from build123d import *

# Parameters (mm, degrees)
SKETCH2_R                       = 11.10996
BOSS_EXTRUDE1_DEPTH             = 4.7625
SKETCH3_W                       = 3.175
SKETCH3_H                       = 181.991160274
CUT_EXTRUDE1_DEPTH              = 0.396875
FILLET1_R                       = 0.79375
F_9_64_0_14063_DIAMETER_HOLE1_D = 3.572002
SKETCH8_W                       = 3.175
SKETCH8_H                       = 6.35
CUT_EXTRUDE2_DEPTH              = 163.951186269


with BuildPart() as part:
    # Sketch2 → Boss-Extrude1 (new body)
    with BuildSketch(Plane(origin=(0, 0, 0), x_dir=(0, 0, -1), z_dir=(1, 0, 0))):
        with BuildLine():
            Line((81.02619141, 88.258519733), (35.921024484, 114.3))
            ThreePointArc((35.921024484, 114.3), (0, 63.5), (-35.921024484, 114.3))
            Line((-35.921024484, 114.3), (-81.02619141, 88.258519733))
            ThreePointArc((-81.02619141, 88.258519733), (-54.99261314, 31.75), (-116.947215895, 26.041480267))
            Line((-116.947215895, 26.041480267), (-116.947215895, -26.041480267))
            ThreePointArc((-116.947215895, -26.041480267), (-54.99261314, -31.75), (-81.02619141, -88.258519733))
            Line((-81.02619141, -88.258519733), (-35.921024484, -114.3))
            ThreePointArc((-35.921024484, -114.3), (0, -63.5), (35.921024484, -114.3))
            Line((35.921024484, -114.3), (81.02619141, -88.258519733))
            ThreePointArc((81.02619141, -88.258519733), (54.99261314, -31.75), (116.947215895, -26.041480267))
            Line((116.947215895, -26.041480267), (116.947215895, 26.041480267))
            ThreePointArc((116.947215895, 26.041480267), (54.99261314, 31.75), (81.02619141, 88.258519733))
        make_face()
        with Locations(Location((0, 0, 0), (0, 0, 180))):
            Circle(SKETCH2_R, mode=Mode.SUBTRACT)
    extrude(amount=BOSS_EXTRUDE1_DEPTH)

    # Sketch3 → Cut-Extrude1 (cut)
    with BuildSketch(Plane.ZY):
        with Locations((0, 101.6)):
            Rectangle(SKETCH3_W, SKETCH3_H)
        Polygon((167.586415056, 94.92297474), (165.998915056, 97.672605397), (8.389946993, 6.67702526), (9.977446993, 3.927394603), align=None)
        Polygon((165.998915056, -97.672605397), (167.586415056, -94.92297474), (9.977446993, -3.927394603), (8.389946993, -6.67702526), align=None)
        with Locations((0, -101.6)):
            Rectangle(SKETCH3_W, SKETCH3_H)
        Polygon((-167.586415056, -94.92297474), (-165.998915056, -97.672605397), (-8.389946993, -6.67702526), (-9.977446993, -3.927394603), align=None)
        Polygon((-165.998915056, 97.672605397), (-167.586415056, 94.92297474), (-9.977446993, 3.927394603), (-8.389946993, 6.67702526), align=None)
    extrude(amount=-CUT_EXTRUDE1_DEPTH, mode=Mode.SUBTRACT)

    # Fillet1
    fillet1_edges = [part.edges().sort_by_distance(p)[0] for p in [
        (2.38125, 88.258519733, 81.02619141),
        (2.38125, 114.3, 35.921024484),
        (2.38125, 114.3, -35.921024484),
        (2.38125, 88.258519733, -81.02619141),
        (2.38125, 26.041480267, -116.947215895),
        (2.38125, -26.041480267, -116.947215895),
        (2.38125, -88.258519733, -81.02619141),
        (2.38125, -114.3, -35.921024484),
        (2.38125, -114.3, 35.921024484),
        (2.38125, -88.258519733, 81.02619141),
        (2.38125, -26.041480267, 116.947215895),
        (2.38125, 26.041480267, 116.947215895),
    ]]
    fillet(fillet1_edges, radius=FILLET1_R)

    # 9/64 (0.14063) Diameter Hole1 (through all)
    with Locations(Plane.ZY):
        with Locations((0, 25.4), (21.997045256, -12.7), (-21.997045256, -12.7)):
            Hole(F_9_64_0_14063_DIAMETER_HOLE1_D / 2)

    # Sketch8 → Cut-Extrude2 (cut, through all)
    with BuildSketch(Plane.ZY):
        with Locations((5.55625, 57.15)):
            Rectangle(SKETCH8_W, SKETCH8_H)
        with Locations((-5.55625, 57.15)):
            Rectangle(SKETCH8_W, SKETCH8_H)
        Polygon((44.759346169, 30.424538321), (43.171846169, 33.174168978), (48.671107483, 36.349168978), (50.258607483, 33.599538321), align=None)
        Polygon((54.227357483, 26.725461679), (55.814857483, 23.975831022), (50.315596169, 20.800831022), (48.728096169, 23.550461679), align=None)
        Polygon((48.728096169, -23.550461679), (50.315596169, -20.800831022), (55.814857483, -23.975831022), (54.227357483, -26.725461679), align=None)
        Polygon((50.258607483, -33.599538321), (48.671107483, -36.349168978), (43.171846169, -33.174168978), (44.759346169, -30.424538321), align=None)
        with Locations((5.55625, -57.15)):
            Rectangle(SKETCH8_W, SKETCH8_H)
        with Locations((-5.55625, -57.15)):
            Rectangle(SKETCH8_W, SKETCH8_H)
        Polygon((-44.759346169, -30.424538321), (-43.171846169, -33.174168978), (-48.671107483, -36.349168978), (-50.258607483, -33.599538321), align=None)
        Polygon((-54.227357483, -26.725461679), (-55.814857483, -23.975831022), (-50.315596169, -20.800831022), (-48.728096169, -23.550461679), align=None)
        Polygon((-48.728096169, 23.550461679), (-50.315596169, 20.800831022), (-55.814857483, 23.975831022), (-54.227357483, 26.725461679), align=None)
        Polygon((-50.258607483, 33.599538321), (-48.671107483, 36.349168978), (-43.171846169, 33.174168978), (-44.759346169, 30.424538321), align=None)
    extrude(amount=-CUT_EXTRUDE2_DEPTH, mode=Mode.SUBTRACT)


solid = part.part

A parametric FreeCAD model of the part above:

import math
import FreeCAD as App
import Part
import Sketcher
from FreeCAD import Vector
Q = App.Units.Quantity


def edges_at(feature, points):
    """Names of the edges that pass closest to the given points."""
    edges = feature.Shape.Edges
    near = lambda p: min(range(len(edges)), key=lambda i: edges[i].distToShape(Part.Vertex(*p))[0])
    return sorted({f"Edge{near(p) + 1}" for p in points})

doc = App.newDocument("Part")
body = doc.addObject("PartDesign::Body", "Body")

# Sketch on YZ plane
sketch1 = doc.addObject("Sketcher::SketchObject", "Sketch")
body.addObject(sketch1)
sketch1.AttachmentSupport = (doc.YZ_Plane, [""])
sketch1.MapMode = "FlatFace"
sketch1.addGeometry(Part.LineSegment(Vector(88.25852, -81.026191, 0), Vector(114.3, -35.921024, 0)), False)
sketch1.addGeometry(Part.ArcOfCircle(Part.Circle(Vector(101.6, 0, 0), Vector(0, 0, 1), 38.1), math.radians(70.528779), math.radians(289.471221)), False)
sketch1.addGeometry(Part.LineSegment(Vector(114.3, 35.921024, 0), Vector(88.25852, 81.026191, 0)), False)
sketch1.addGeometry(Part.ArcOfCircle(Part.Circle(Vector(50.8, 87.988181, 0), Vector(0, 0, 1), 38.1), math.radians(130.528779), math.radians(349.471221)), False)
sketch1.addGeometry(Part.LineSegment(Vector(26.04148, 116.947216, 0), Vector(-26.04148, 116.947216, 0)), False)
sketch1.addGeometry(Part.ArcOfCircle(Part.Circle(Vector(-50.8, 87.988181, 0), Vector(0, 0, 1), 38.1), math.radians(-169.471221), math.radians(49.471221)), False)
sketch1.addGeometry(Part.LineSegment(Vector(-88.25852, 81.026191, 0), Vector(-114.3, 35.921024, 0)), False)
sketch1.addGeometry(Part.ArcOfCircle(Part.Circle(Vector(-101.6, 0, 0), Vector(0, 0, 1), 38.1), math.radians(-109.471221), math.radians(109.471221)), False)
sketch1.addGeometry(Part.LineSegment(Vector(-114.3, -35.921024, 0), Vector(-88.25852, -81.026191, 0)), False)
sketch1.addGeometry(Part.ArcOfCircle(Part.Circle(Vector(-50.8, -87.988181, 0), Vector(0, 0, 1), 38.1), math.radians(-49.471221), math.radians(169.471221)), False)
sketch1.addGeometry(Part.LineSegment(Vector(-26.04148, -116.947216, 0), Vector(26.04148, -116.947216, 0)), False)
sketch1.addGeometry(Part.ArcOfCircle(Part.Circle(Vector(50.8, -87.988181, 0), Vector(0, 0, 1), 38.1), math.radians(10.528779), math.radians(229.471221)), False)
sketch1.addGeometry(Part.Circle(Vector(0, 0, 0), Vector(0, 0, 1), 11.10996), False)
sketch1.addConstraint(Sketcher.Constraint("Coincident", 0, 2, 1, 2))
sketch1.addConstraint(Sketcher.Constraint("Coincident", 1, 1, 2, 1))
sketch1.addConstraint(Sketcher.Constraint("Coincident", 2, 2, 3, 2))
sketch1.addConstraint(Sketcher.Constraint("Coincident", 3, 1, 4, 1))
sketch1.addConstraint(Sketcher.Constraint("Coincident", 4, 2, 5, 2))
sketch1.addConstraint(Sketcher.Constraint("Coincident", 5, 1, 6, 1))
sketch1.addConstraint(Sketcher.Constraint("Coincident", 6, 2, 7, 2))
sketch1.addConstraint(Sketcher.Constraint("Coincident", 7, 1, 8, 1))
sketch1.addConstraint(Sketcher.Constraint("Coincident", 8, 2, 9, 2))
sketch1.addConstraint(Sketcher.Constraint("Coincident", 9, 1, 10, 1))
sketch1.addConstraint(Sketcher.Constraint("Coincident", 10, 2, 11, 2))
sketch1.addConstraint(Sketcher.Constraint("Coincident", 11, 1, 0, 1))
sketch1.addConstraint(Sketcher.Constraint("Horizontal", 4))
sketch1.addConstraint(Sketcher.Constraint("Horizontal", 10))
sketch1.addConstraint(Sketcher.Constraint("Coincident", 12, 3, -1, 1))
sketch1.addConstraint(Sketcher.Constraint("Equal", 1, 3))
sketch1.addConstraint(Sketcher.Constraint("Equal", 3, 5))
sketch1.addConstraint(Sketcher.Constraint("Equal", 5, 7))
sketch1.addConstraint(Sketcher.Constraint("Equal", 7, 9))
sketch1.addConstraint(Sketcher.Constraint("Equal", 9, 11))
sketch1.addConstraint(Sketcher.Constraint("Symmetric", 1, 3, 7, 3, -1, 1))
sketch1.addConstraint(Sketcher.Constraint("Symmetric", 3, 3, 9, 3, -1, 1))
sketch1.addConstraint(Sketcher.Constraint("Symmetric", 5, 3, 11, 3, -1, 1))
sketch1.addConstraint(Sketcher.Constraint("Symmetric", 3, 3, 5, 3, -2))
sketch1.addConstraint(Sketcher.Constraint("Symmetric", 1, 1, 6, 2, -2))
sketch1.addConstraint(Sketcher.Constraint("Parallel", 0, 6))
sketch1.addConstraint(Sketcher.Constraint("Parallel", 2, 8))
sketch1.addConstraint(Sketcher.Constraint("Horizontal", 2, 2, 5, 1))
sketch1.addConstraint(Sketcher.Constraint("Horizontal", 0, 2, 7, 1))
sketch1.addConstraint(Sketcher.Constraint("Vertical", 0, 2, 1, 1))
sketch1.addConstraint(Sketcher.Constraint("Vertical", 4, 2, 9, 1))
sketch1.addConstraint(Sketcher.Constraint("Radius", 1, Q("1.5 in")))
sketch1.addConstraint(Sketcher.Constraint("DistanceX", -1, 1, 1, 3, Q("4 in")))
sketch1.addConstraint(Sketcher.Constraint("DistanceX", -1, 1, 3, 3, Q("2 in")))
sketch1.addConstraint(Sketcher.Constraint("Angle", 0, Q("60 deg")))
sketch1.addConstraint(Sketcher.Constraint("Diameter", 12, Q("0.8748 in")))
sketch1.addConstraint(Sketcher.Constraint("DistanceX", -1, 1, 0, 2, Q("4.5 in")))
sketch1.addConstraint(Sketcher.Constraint("DistanceX", 4, 2, 2, 2, Q("4.5 in")))
sketch1.addConstraint(Sketcher.Constraint("DistanceX", 4, 2, 4, 1, Q("52.082961 mm")))
pad1 = doc.addObject("PartDesign::Pad", "Pad")
body.addObject(pad1)
pad1.Profile = sketch1
pad1.Length = Q("0.1875 in")

# Sketch on YZ plane
sketch2 = doc.addObject("Sketcher::SketchObject", "Sketch001")
body.addObject(sketch2)
sketch2.AttachmentSupport = (doc.YZ_Plane, [""])
sketch2.MapMode = "FlatFace"
sketch2.addGeometry(Part.LineSegment(Vector(192.59558, -1.5875, 0), Vector(10.60442, -1.5875, 0)), False)
sketch2.addGeometry(Part.LineSegment(Vector(10.60442, -1.5875, 0), Vector(10.60442, 1.5875, 0)), False)
sketch2.addGeometry(Part.LineSegment(Vector(10.60442, 1.5875, 0), Vector(192.59558, 1.5875, 0)), False)
sketch2.addGeometry(Part.LineSegment(Vector(192.59558, 1.5875, 0), Vector(192.59558, -1.5875, 0)), False)
sketch2.addGeometry(Part.LineSegment(Vector(94.922975, 167.586415, 0), Vector(97.672605, 165.998915, 0)), False)
sketch2.addGeometry(Part.LineSegment(Vector(97.672605, 165.998915, 0), Vector(6.677025, 8.389947, 0)), False)
sketch2.addGeometry(Part.LineSegment(Vector(6.677025, 8.389947, 0), Vector(3.927395, 9.977447, 0)), False)
sketch2.addGeometry(Part.LineSegment(Vector(3.927395, 9.977447, 0), Vector(94.922975, 167.586415, 0)), False)
sketch2.addGeometry(Part.LineSegment(Vector(-97.672605, 165.998915, 0), Vector(-94.922975, 167.586415, 0)), False)
sketch2.addGeometry(Part.LineSegment(Vector(-94.922975, 167.586415, 0), Vector(-3.927395, 9.977447, 0)), False)
sketch2.addGeometry(Part.LineSegment(Vector(-3.927395, 9.977447, 0), Vector(-6.677025, 8.389947, 0)), False)
sketch2.addGeometry(Part.LineSegment(Vector(-6.677025, 8.389947, 0), Vector(-97.672605, 165.998915, 0)), False)
sketch2.addGeometry(Part.LineSegment(Vector(-10.60442, -1.5875, 0), Vector(-192.59558, -1.5875, 0)), False)
sketch2.addGeometry(Part.LineSegment(Vector(-192.59558, -1.5875, 0), Vector(-192.59558, 1.5875, 0)), False)
sketch2.addGeometry(Part.LineSegment(Vector(-192.59558, 1.5875, 0), Vector(-10.60442, 1.5875, 0)), False)
sketch2.addGeometry(Part.LineSegment(Vector(-10.60442, 1.5875, 0), Vector(-10.60442, -1.5875, 0)), False)
sketch2.addGeometry(Part.LineSegment(Vector(-94.922975, -167.586415, 0), Vector(-97.672605, -165.998915, 0)), False)
sketch2.addGeometry(Part.LineSegment(Vector(-97.672605, -165.998915, 0), Vector(-6.677025, -8.389947, 0)), False)
sketch2.addGeometry(Part.LineSegment(Vector(-6.677025, -8.389947, 0), Vector(-3.927395, -9.977447, 0)), False)
sketch2.addGeometry(Part.LineSegment(Vector(-3.927395, -9.977447, 0), Vector(-94.922975, -167.586415, 0)), False)
sketch2.addGeometry(Part.LineSegment(Vector(97.672605, -165.998915, 0), Vector(94.922975, -167.586415, 0)), False)
sketch2.addGeometry(Part.LineSegment(Vector(94.922975, -167.586415, 0), Vector(3.927395, -9.977447, 0)), False)
sketch2.addGeometry(Part.LineSegment(Vector(3.927395, -9.977447, 0), Vector(6.677025, -8.389947, 0)), False)
sketch2.addGeometry(Part.LineSegment(Vector(6.677025, -8.389947, 0), Vector(97.672605, -165.998915, 0)), False)
sketch2.addConstraint(Sketcher.Constraint("Coincident", 0, 2, 1, 1))
sketch2.addConstraint(Sketcher.Constraint("Coincident", 1, 2, 2, 1))
sketch2.addConstraint(Sketcher.Constraint("Coincident", 2, 2, 3, 1))
sketch2.addConstraint(Sketcher.Constraint("Coincident", 3, 2, 0, 1))
sketch2.addConstraint(Sketcher.Constraint("Coincident", 4, 2, 5, 1))
sketch2.addConstraint(Sketcher.Constraint("Coincident", 5, 2, 6, 1))
sketch2.addConstraint(Sketcher.Constraint("Coincident", 6, 2, 7, 1))
sketch2.addConstraint(Sketcher.Constraint("Coincident", 7, 2, 4, 1))
sketch2.addConstraint(Sketcher.Constraint("Coincident", 8, 2, 9, 1))
sketch2.addConstraint(Sketcher.Constraint("Coincident", 9, 2, 10, 1))
sketch2.addConstraint(Sketcher.Constraint("Coincident", 10, 2, 11, 1))
sketch2.addConstraint(Sketcher.Constraint("Coincident", 11, 2, 8, 1))
sketch2.addConstraint(Sketcher.Constraint("Coincident", 12, 2, 13, 1))
sketch2.addConstraint(Sketcher.Constraint("Coincident", 13, 2, 14, 1))
sketch2.addConstraint(Sketcher.Constraint("Coincident", 14, 2, 15, 1))
sketch2.addConstraint(Sketcher.Constraint("Coincident", 15, 2, 12, 1))
sketch2.addConstraint(Sketcher.Constraint("Coincident", 16, 2, 17, 1))
sketch2.addConstraint(Sketcher.Constraint("Coincident", 17, 2, 18, 1))
sketch2.addConstraint(Sketcher.Constraint("Coincident", 18, 2, 19, 1))
sketch2.addConstraint(Sketcher.Constraint("Coincident", 19, 2, 16, 1))
sketch2.addConstraint(Sketcher.Constraint("Coincident", 20, 2, 21, 1))
sketch2.addConstraint(Sketcher.Constraint("Coincident", 21, 2, 22, 1))
sketch2.addConstraint(Sketcher.Constraint("Coincident", 22, 2, 23, 1))
sketch2.addConstraint(Sketcher.Constraint("Coincident", 23, 2, 20, 1))
sketch2.addConstraint(Sketcher.Constraint("Horizontal", 0))
sketch2.addConstraint(Sketcher.Constraint("Vertical", 1))
sketch2.addConstraint(Sketcher.Constraint("Horizontal", 2))
sketch2.addConstraint(Sketcher.Constraint("Vertical", 3))
sketch2.addConstraint(Sketcher.Constraint("Horizontal", 12))
sketch2.addConstraint(Sketcher.Constraint("Vertical", 13))
sketch2.addConstraint(Sketcher.Constraint("Horizontal", 14))
sketch2.addConstraint(Sketcher.Constraint("Vertical", 15))
sketch2.addConstraint(Sketcher.Constraint("Symmetric", 2, 2, 12, 2, -1, 1))
sketch2.addConstraint(Sketcher.Constraint("Symmetric", 0, 2, 14, 2, -1, 1))
sketch2.addConstraint(Sketcher.Constraint("Symmetric", 4, 2, 16, 2, -1, 1))
sketch2.addConstraint(Sketcher.Constraint("Symmetric", 5, 2, 17, 2, -1, 1))
sketch2.addConstraint(Sketcher.Constraint("Symmetric", 6, 2, 18, 2, -1, 1))
sketch2.addConstraint(Sketcher.Constraint("Symmetric", 7, 2, 19, 2, -1, 1))
sketch2.addConstraint(Sketcher.Constraint("Symmetric", 8, 2, 20, 2, -1, 1))
sketch2.addConstraint(Sketcher.Constraint("Symmetric", 9, 2, 21, 2, -1, 1))
sketch2.addConstraint(Sketcher.Constraint("Symmetric", 10, 2, 22, 2, -1, 1))
sketch2.addConstraint(Sketcher.Constraint("Symmetric", 11, 2, 23, 2, -1, 1))
sketch2.addConstraint(Sketcher.Constraint("Symmetric", 7, 2, 8, 2, -2))
sketch2.addConstraint(Sketcher.Constraint("Symmetric", 6, 2, 9, 2, -2))
sketch2.addConstraint(Sketcher.Constraint("Symmetric", 5, 2, 10, 2, -2))
sketch2.addConstraint(Sketcher.Constraint("Symmetric", 4, 2, 11, 2, -2))
sketch2.addConstraint(Sketcher.Constraint("Perpendicular", 4, 5))
sketch2.addConstraint(Sketcher.Constraint("Perpendicular", 5, 6))
sketch2.addConstraint(Sketcher.Constraint("Perpendicular", 6, 7))
sketch2.addConstraint(Sketcher.Constraint("Horizontal", 3, 2, 12, 2))
sketch2.addConstraint(Sketcher.Constraint("Angle", 4, Q("-30 deg")))
sketch2.addConstraint(Sketcher.Constraint("DistanceX", 8, 2, 5, 2, Q("4 in")))
sketch2.addConstraint(Sketcher.Constraint("DistanceY", 1, 1, 1, 2, Q("0.125 in")))
sketch2.addConstraint(Sketcher.Constraint("Distance", 4, Q("0.125 in")))
sketch2.addConstraint(Sketcher.Constraint("DistanceX", 0, 2, 0, 1, Q("181.99116 mm")))
sketch2.addConstraint(Sketcher.Constraint("Distance", 5, Q("181.99116 mm")))
sketch2.addConstraint(Sketcher.Constraint("DistanceX", -1, 1, 0, 2, Q("10.60442 mm")))
sketch2.addConstraint(Sketcher.Constraint("DistanceY", -1, 1, 4, 2, Q("165.998915 mm")))
pocket1 = doc.addObject("PartDesign::Pocket", "Pocket")
body.addObject(pocket1)
pocket1.Profile = sketch2
pocket1.Length = Q("0.015625 in")
pocket1.Reversed = True
doc.recompute()

fillet = doc.addObject("PartDesign::Fillet", "Fillet")
body.addObject(fillet)
fillet.Base = (pocket1, edges_at(pocket1, [
    (2.381, 88.259, 81.026),
    (2.381, 114.3, 35.921),
    (2.381, 114.3, -35.921),
    (2.381, 88.259, -81.026),
    (2.381, 26.041, -116.947),
    (2.381, -26.041, -116.947),
    (2.381, -88.259, -81.026),
    (2.381, -114.3, -35.921),
    (2.381, -114.3, 35.921),
    (2.381, -88.259, 81.026),
    (2.381, -26.041, 116.947),
    (2.381, 26.041, 116.947),
]))
fillet.Radius = Q("0.03125 in")

# Sketch on YZ plane
sketch3 = doc.addObject("Sketcher::SketchObject", "Sketch002")
body.addObject(sketch3)
sketch3.AttachmentSupport = (doc.YZ_Plane, [""])
sketch3.MapMode = "FlatFace"
sketch3.addGeometry(Part.Circle(Vector(25.4, 0, 0), Vector(0, 0, 1), 1.786001), False)
sketch3.addGeometry(Part.Circle(Vector(-12.7, 21.997045, 0), Vector(0, 0, 1), 1.786001), False)
sketch3.addGeometry(Part.Circle(Vector(-12.7, -21.997045, 0), Vector(0, 0, 1), 1.786001), False)
sketch3.addConstraint(Sketcher.Constraint("Equal", 0, 1))
sketch3.addConstraint(Sketcher.Constraint("Equal", 1, 2))
sketch3.addConstraint(Sketcher.Constraint("Symmetric", 1, 3, 2, 3, -1))
sketch3.addConstraint(Sketcher.Constraint("PointOnObject", 0, 3, -1))
sketch3.addConstraint(Sketcher.Constraint("DistanceX", -1, 1, 0, 3, Q("1 in")))
sketch3.addConstraint(Sketcher.Constraint("DistanceX", 1, 3, -1, 1, Q("0.5 in")))
sketch3.addConstraint(Sketcher.Constraint("Diameter", 0, Q("3.572002 mm")))
sketch3.addConstraint(Sketcher.Constraint("DistanceY", 2, 3, 1, 3, Q("43.994091 mm")))
doc.recompute()
hole = doc.addObject("PartDesign::Hole", "Hole")
body.addObject(hole)
hole.Profile = sketch3
hole.ThreadType = "None"
hole.Diameter = 3.572002
hole.DepthType = "ThroughAll"
hole.Reversed = True

# Sketch on YZ plane
sketch4 = doc.addObject("Sketcher::SketchObject", "Sketch003")
body.addObject(sketch4)
sketch4.AttachmentSupport = (doc.YZ_Plane, [""])
sketch4.MapMode = "FlatFace"
sketch4.addGeometry(Part.LineSegment(Vector(60.325, 3.96875, 0), Vector(53.975, 3.96875, 0)), False)
sketch4.addGeometry(Part.LineSegment(Vector(53.975, 3.96875, 0), Vector(53.975, 7.14375, 0)), False)
sketch4.addGeometry(Part.LineSegment(Vector(53.975, 7.14375, 0), Vector(60.325, 7.14375, 0)), False)
sketch4.addGeometry(Part.LineSegment(Vector(60.325, 7.14375, 0), Vector(60.325, 3.96875, 0)), False)
sketch4.addGeometry(Part.LineSegment(Vector(60.325, -7.14375, 0), Vector(53.975, -7.14375, 0)), False)
sketch4.addGeometry(Part.LineSegment(Vector(53.975, -7.14375, 0), Vector(53.975, -3.96875, 0)), False)
sketch4.addGeometry(Part.LineSegment(Vector(53.975, -3.96875, 0), Vector(60.325, -3.96875, 0)), False)
sketch4.addGeometry(Part.LineSegment(Vector(60.325, -3.96875, 0), Vector(60.325, -7.14375, 0)), False)
sketch4.addGeometry(Part.LineSegment(Vector(33.174169, 43.171846, 0), Vector(30.424538, 44.759346, 0)), False)
sketch4.addGeometry(Part.LineSegment(Vector(30.424538, 44.759346, 0), Vector(33.599538, 50.258607, 0)), False)
sketch4.addGeometry(Part.LineSegment(Vector(33.599538, 50.258607, 0), Vector(36.349169, 48.671107, 0)), False)
sketch4.addGeometry(Part.LineSegment(Vector(36.349169, 48.671107, 0), Vector(33.174169, 43.171846, 0)), False)
sketch4.addGeometry(Part.LineSegment(Vector(23.975831, 55.814857, 0), Vector(26.725462, 54.227357, 0)), False)
sketch4.addGeometry(Part.LineSegment(Vector(26.725462, 54.227357, 0), Vector(23.550462, 48.728096, 0)), False)
sketch4.addGeometry(Part.LineSegment(Vector(23.550462, 48.728096, 0), Vector(20.800831, 50.315596, 0)), False)
sketch4.addGeometry(Part.LineSegment(Vector(20.800831, 50.315596, 0), Vector(23.975831, 55.814857, 0)), False)
sketch4.addGeometry(Part.LineSegment(Vector(-20.800831, 50.315596, 0), Vector(-23.550462, 48.728096, 0)), False)
sketch4.addGeometry(Part.LineSegment(Vector(-23.550462, 48.728096, 0), Vector(-26.725462, 54.227357, 0)), False)
sketch4.addGeometry(Part.LineSegment(Vector(-26.725462, 54.227357, 0), Vector(-23.975831, 55.814857, 0)), False)
sketch4.addGeometry(Part.LineSegment(Vector(-23.975831, 55.814857, 0), Vector(-20.800831, 50.315596, 0)), False)
sketch4.addGeometry(Part.LineSegment(Vector(-36.349169, 48.671107, 0), Vector(-33.599538, 50.258607, 0)), False)
sketch4.addGeometry(Part.LineSegment(Vector(-33.599538, 50.258607, 0), Vector(-30.424538, 44.759346, 0)), False)
sketch4.addGeometry(Part.LineSegment(Vector(-30.424538, 44.759346, 0), Vector(-33.174169, 43.171846, 0)), False)
sketch4.addGeometry(Part.LineSegment(Vector(-33.174169, 43.171846, 0), Vector(-36.349169, 48.671107, 0)), False)
sketch4.addGeometry(Part.LineSegment(Vector(-53.975, 3.96875, 0), Vector(-60.325, 3.96875, 0)), False)
sketch4.addGeometry(Part.LineSegment(Vector(-60.325, 3.96875, 0), Vector(-60.325, 7.14375, 0)), False)
sketch4.addGeometry(Part.LineSegment(Vector(-60.325, 7.14375, 0), Vector(-53.975, 7.14375, 0)), False)
sketch4.addGeometry(Part.LineSegment(Vector(-53.975, 7.14375, 0), Vector(-53.975, 3.96875, 0)), False)
sketch4.addGeometry(Part.LineSegment(Vector(-53.975, -7.14375, 0), Vector(-60.325, -7.14375, 0)), False)
sketch4.addGeometry(Part.LineSegment(Vector(-60.325, -7.14375, 0), Vector(-60.325, -3.96875, 0)), False)
sketch4.addGeometry(Part.LineSegment(Vector(-60.325, -3.96875, 0), Vector(-53.975, -3.96875, 0)), False)
sketch4.addGeometry(Part.LineSegment(Vector(-53.975, -3.96875, 0), Vector(-53.975, -7.14375, 0)), False)
sketch4.addGeometry(Part.LineSegment(Vector(-33.174169, -43.171846, 0), Vector(-30.424538, -44.759346, 0)), False)
sketch4.addGeometry(Part.LineSegment(Vector(-30.424538, -44.759346, 0), Vector(-33.599538, -50.258607, 0)), False)
sketch4.addGeometry(Part.LineSegment(Vector(-33.599538, -50.258607, 0), Vector(-36.349169, -48.671107, 0)), False)
sketch4.addGeometry(Part.LineSegment(Vector(-36.349169, -48.671107, 0), Vector(-33.174169, -43.171846, 0)), False)
sketch4.addGeometry(Part.LineSegment(Vector(-23.975831, -55.814857, 0), Vector(-26.725462, -54.227357, 0)), False)
sketch4.addGeometry(Part.LineSegment(Vector(-26.725462, -54.227357, 0), Vector(-23.550462, -48.728096, 0)), False)
sketch4.addGeometry(Part.LineSegment(Vector(-23.550462, -48.728096, 0), Vector(-20.800831, -50.315596, 0)), False)
sketch4.addGeometry(Part.LineSegment(Vector(-20.800831, -50.315596, 0), Vector(-23.975831, -55.814857, 0)), False)
sketch4.addGeometry(Part.LineSegment(Vector(20.800831, -50.315596, 0), Vector(23.550462, -48.728096, 0)), False)
sketch4.addGeometry(Part.LineSegment(Vector(23.550462, -48.728096, 0), Vector(26.725462, -54.227357, 0)), False)
sketch4.addGeometry(Part.LineSegment(Vector(26.725462, -54.227357, 0), Vector(23.975831, -55.814857, 0)), False)
sketch4.addGeometry(Part.LineSegment(Vector(23.975831, -55.814857, 0), Vector(20.800831, -50.315596, 0)), False)
sketch4.addGeometry(Part.LineSegment(Vector(36.349169, -48.671107, 0), Vector(33.599538, -50.258607, 0)), False)
sketch4.addGeometry(Part.LineSegment(Vector(33.599538, -50.258607, 0), Vector(30.424538, -44.759346, 0)), False)
sketch4.addGeometry(Part.LineSegment(Vector(30.424538, -44.759346, 0), Vector(33.174169, -43.171846, 0)), False)
sketch4.addGeometry(Part.LineSegment(Vector(33.174169, -43.171846, 0), Vector(36.349169, -48.671107, 0)), False)
sketch4.addConstraint(Sketcher.Constraint("Coincident", 0, 2, 1, 1))
sketch4.addConstraint(Sketcher.Constraint("Coincident", 1, 2, 2, 1))
sketch4.addConstraint(Sketcher.Constraint("Coincident", 2, 2, 3, 1))
sketch4.addConstraint(Sketcher.Constraint("Coincident", 3, 2, 0, 1))
sketch4.addConstraint(Sketcher.Constraint("Coincident", 4, 2, 5, 1))
sketch4.addConstraint(Sketcher.Constraint("Coincident", 5, 2, 6, 1))
sketch4.addConstraint(Sketcher.Constraint("Coincident", 6, 2, 7, 1))
sketch4.addConstraint(Sketcher.Constraint("Coincident", 7, 2, 4, 1))
sketch4.addConstraint(Sketcher.Constraint("Coincident", 8, 2, 9, 1))
sketch4.addConstraint(Sketcher.Constraint("Coincident", 9, 2, 10, 1))
sketch4.addConstraint(Sketcher.Constraint("Coincident", 10, 2, 11, 1))
sketch4.addConstraint(Sketcher.Constraint("Coincident", 11, 2, 8, 1))
sketch4.addConstraint(Sketcher.Constraint("Coincident", 12, 2, 13, 1))
sketch4.addConstraint(Sketcher.Constraint("Coincident", 13, 2, 14, 1))
sketch4.addConstraint(Sketcher.Constraint("Coincident", 14, 2, 15, 1))
sketch4.addConstraint(Sketcher.Constraint("Coincident", 15, 2, 12, 1))
sketch4.addConstraint(Sketcher.Constraint("Coincident", 16, 2, 17, 1))
sketch4.addConstraint(Sketcher.Constraint("Coincident", 17, 2, 18, 1))
sketch4.addConstraint(Sketcher.Constraint("Coincident", 18, 2, 19, 1))
sketch4.addConstraint(Sketcher.Constraint("Coincident", 19, 2, 16, 1))
sketch4.addConstraint(Sketcher.Constraint("Coincident", 20, 2, 21, 1))
sketch4.addConstraint(Sketcher.Constraint("Coincident", 21, 2, 22, 1))
sketch4.addConstraint(Sketcher.Constraint("Coincident", 22, 2, 23, 1))
sketch4.addConstraint(Sketcher.Constraint("Coincident", 23, 2, 20, 1))
sketch4.addConstraint(Sketcher.Constraint("Coincident", 24, 2, 25, 1))
sketch4.addConstraint(Sketcher.Constraint("Coincident", 25, 2, 26, 1))
sketch4.addConstraint(Sketcher.Constraint("Coincident", 26, 2, 27, 1))
sketch4.addConstraint(Sketcher.Constraint("Coincident", 27, 2, 24, 1))
sketch4.addConstraint(Sketcher.Constraint("Coincident", 28, 2, 29, 1))
sketch4.addConstraint(Sketcher.Constraint("Coincident", 29, 2, 30, 1))
sketch4.addConstraint(Sketcher.Constraint("Coincident", 30, 2, 31, 1))
sketch4.addConstraint(Sketcher.Constraint("Coincident", 31, 2, 28, 1))
sketch4.addConstraint(Sketcher.Constraint("Coincident", 32, 2, 33, 1))
sketch4.addConstraint(Sketcher.Constraint("Coincident", 33, 2, 34, 1))
sketch4.addConstraint(Sketcher.Constraint("Coincident", 34, 2, 35, 1))
sketch4.addConstraint(Sketcher.Constraint("Coincident", 35, 2, 32, 1))
sketch4.addConstraint(Sketcher.Constraint("Coincident", 36, 2, 37, 1))
sketch4.addConstraint(Sketcher.Constraint("Coincident", 37, 2, 38, 1))
sketch4.addConstraint(Sketcher.Constraint("Coincident", 38, 2, 39, 1))
sketch4.addConstraint(Sketcher.Constraint("Coincident", 39, 2, 36, 1))
sketch4.addConstraint(Sketcher.Constraint("Coincident", 40, 2, 41, 1))
sketch4.addConstraint(Sketcher.Constraint("Coincident", 41, 2, 42, 1))
sketch4.addConstraint(Sketcher.Constraint("Coincident", 42, 2, 43, 1))
sketch4.addConstraint(Sketcher.Constraint("Coincident", 43, 2, 40, 1))
sketch4.addConstraint(Sketcher.Constraint("Coincident", 44, 2, 45, 1))
sketch4.addConstraint(Sketcher.Constraint("Coincident", 45, 2, 46, 1))
sketch4.addConstraint(Sketcher.Constraint("Coincident", 46, 2, 47, 1))
sketch4.addConstraint(Sketcher.Constraint("Coincident", 47, 2, 44, 1))
sketch4.addConstraint(Sketcher.Constraint("Horizontal", 0))
sketch4.addConstraint(Sketcher.Constraint("Vertical", 1))
sketch4.addConstraint(Sketcher.Constraint("Horizontal", 2))
sketch4.addConstraint(Sketcher.Constraint("Vertical", 3))
sketch4.addConstraint(Sketcher.Constraint("Horizontal", 4))
sketch4.addConstraint(Sketcher.Constraint("Vertical", 5))
sketch4.addConstraint(Sketcher.Constraint("Horizontal", 6))
sketch4.addConstraint(Sketcher.Constraint("Vertical", 7))
sketch4.addConstraint(Sketcher.Constraint("Horizontal", 24))
sketch4.addConstraint(Sketcher.Constraint("Vertical", 25))
sketch4.addConstraint(Sketcher.Constraint("Horizontal", 26))
sketch4.addConstraint(Sketcher.Constraint("Vertical", 27))
sketch4.addConstraint(Sketcher.Constraint("Horizontal", 28))
sketch4.addConstraint(Sketcher.Constraint("Vertical", 29))
sketch4.addConstraint(Sketcher.Constraint("Horizontal", 30))
sketch4.addConstraint(Sketcher.Constraint("Vertical", 31))
sketch4.addConstraint(Sketcher.Constraint("Symmetric", 6, 2, 24, 2, -1, 1))
sketch4.addConstraint(Sketcher.Constraint("Symmetric", 4, 2, 26, 2, -1, 1))
sketch4.addConstraint(Sketcher.Constraint("Symmetric", 2, 2, 28, 2, -1, 1))
sketch4.addConstraint(Sketcher.Constraint("Symmetric", 0, 2, 30, 2, -1, 1))
sketch4.addConstraint(Sketcher.Constraint("Symmetric", 8, 2, 32, 2, -1, 1))
sketch4.addConstraint(Sketcher.Constraint("Symmetric", 9, 2, 33, 2, -1, 1))
sketch4.addConstraint(Sketcher.Constraint("Symmetric", 10, 2, 34, 2, -1, 1))
sketch4.addConstraint(Sketcher.Constraint("Symmetric", 11, 2, 35, 2, -1, 1))
sketch4.addConstraint(Sketcher.Constraint("Symmetric", 12, 2, 36, 2, -1, 1))
sketch4.addConstraint(Sketcher.Constraint("Symmetric", 13, 2, 37, 2, -1, 1))
sketch4.addConstraint(Sketcher.Constraint("Symmetric", 14, 2, 38, 2, -1, 1))
sketch4.addConstraint(Sketcher.Constraint("Symmetric", 15, 2, 39, 2, -1, 1))
sketch4.addConstraint(Sketcher.Constraint("Symmetric", 16, 2, 40, 2, -1, 1))
sketch4.addConstraint(Sketcher.Constraint("Symmetric", 17, 2, 41, 2, -1, 1))
sketch4.addConstraint(Sketcher.Constraint("Symmetric", 18, 2, 42, 2, -1, 1))
sketch4.addConstraint(Sketcher.Constraint("Symmetric", 19, 2, 43, 2, -1, 1))
sketch4.addConstraint(Sketcher.Constraint("Symmetric", 20, 2, 44, 2, -1, 1))
sketch4.addConstraint(Sketcher.Constraint("Symmetric", 21, 2, 45, 2, -1, 1))
sketch4.addConstraint(Sketcher.Constraint("Symmetric", 22, 2, 46, 2, -1, 1))
sketch4.addConstraint(Sketcher.Constraint("Symmetric", 23, 2, 47, 2, -1, 1))
sketch4.addConstraint(Sketcher.Constraint("Symmetric", 13, 2, 16, 2, -2))
sketch4.addConstraint(Sketcher.Constraint("Symmetric", 12, 2, 17, 2, -2))
sketch4.addConstraint(Sketcher.Constraint("Symmetric", 15, 2, 18, 2, -2))
sketch4.addConstraint(Sketcher.Constraint("Symmetric", 14, 2, 19, 2, -2))
sketch4.addConstraint(Sketcher.Constraint("Symmetric", 9, 2, 20, 2, -2))
sketch4.addConstraint(Sketcher.Constraint("Symmetric", 8, 2, 21, 2, -2))
sketch4.addConstraint(Sketcher.Constraint("Symmetric", 11, 2, 22, 2, -2))
sketch4.addConstraint(Sketcher.Constraint("Symmetric", 10, 2, 23, 2, -2))
sketch4.addConstraint(Sketcher.Constraint("Symmetric", 3, 2, 24, 2, -2))
sketch4.addConstraint(Sketcher.Constraint("Symmetric", 1, 2, 26, 2, -2))
sketch4.addConstraint(Sketcher.Constraint("Perpendicular", 8, 9))
sketch4.addConstraint(Sketcher.Constraint("Perpendicular", 9, 10))
sketch4.addConstraint(Sketcher.Constraint("Perpendicular", 10, 11))
sketch4.addConstraint(Sketcher.Constraint("Perpendicular", 11, 12))
sketch4.addConstraint(Sketcher.Constraint("Perpendicular", 12, 13))
sketch4.addConstraint(Sketcher.Constraint("Perpendicular", 13, 14))
sketch4.addConstraint(Sketcher.Constraint("Perpendicular", 14, 15))
sketch4.addConstraint(Sketcher.Constraint("Equal", 10, 12))
sketch4.addConstraint(Sketcher.Constraint("Equal", 11, 13))
sketch4.addConstraint(Sketcher.Constraint("Angle", 8, Q("150 deg")))
sketch4.addConstraint(Sketcher.Constraint("DistanceX", 0, 2, 0, 1, Q("0.25 in")))
sketch4.addConstraint(Sketcher.Constraint("Distance", 9, Q("0.25 in")))
sketch4.addConstraint(Sketcher.Constraint("DistanceY", 1, 1, 1, 2, Q("0.125 in")))
sketch4.addConstraint(Sketcher.Constraint("Distance", 8, Q("0.125 in")))
sketch4.addConstraint(Sketcher.Constraint("DistanceX", -1, 1, 0, 2, Q("2.125 in")))
sketch4.addConstraint(Sketcher.Constraint("DistanceY", -1, 1, 0, 2, Q("0.15625 in")))
sketch4.addConstraint(Sketcher.Constraint("DistanceY", 9, 2, 12, 2, Q("0.15625 in")))
sketch4.addConstraint(Sketcher.Constraint("DistanceX", 16, 2, 8, 2, Q("2.125 in")))
sketch4.addConstraint(Sketcher.Constraint("DistanceX", -1, 1, 8, 2, Q("30.424538 mm")))
sketch4.addConstraint(Sketcher.Constraint("DistanceY", -1, 1, 8, 2, Q("44.759346 mm")))
pocket2 = doc.addObject("PartDesign::Pocket", "Pocket001")
body.addObject(pocket2)
pocket2.Profile = sketch4
pocket2.Type = "ThroughAll"
pocket2.Reversed = True

doc.recompute()
